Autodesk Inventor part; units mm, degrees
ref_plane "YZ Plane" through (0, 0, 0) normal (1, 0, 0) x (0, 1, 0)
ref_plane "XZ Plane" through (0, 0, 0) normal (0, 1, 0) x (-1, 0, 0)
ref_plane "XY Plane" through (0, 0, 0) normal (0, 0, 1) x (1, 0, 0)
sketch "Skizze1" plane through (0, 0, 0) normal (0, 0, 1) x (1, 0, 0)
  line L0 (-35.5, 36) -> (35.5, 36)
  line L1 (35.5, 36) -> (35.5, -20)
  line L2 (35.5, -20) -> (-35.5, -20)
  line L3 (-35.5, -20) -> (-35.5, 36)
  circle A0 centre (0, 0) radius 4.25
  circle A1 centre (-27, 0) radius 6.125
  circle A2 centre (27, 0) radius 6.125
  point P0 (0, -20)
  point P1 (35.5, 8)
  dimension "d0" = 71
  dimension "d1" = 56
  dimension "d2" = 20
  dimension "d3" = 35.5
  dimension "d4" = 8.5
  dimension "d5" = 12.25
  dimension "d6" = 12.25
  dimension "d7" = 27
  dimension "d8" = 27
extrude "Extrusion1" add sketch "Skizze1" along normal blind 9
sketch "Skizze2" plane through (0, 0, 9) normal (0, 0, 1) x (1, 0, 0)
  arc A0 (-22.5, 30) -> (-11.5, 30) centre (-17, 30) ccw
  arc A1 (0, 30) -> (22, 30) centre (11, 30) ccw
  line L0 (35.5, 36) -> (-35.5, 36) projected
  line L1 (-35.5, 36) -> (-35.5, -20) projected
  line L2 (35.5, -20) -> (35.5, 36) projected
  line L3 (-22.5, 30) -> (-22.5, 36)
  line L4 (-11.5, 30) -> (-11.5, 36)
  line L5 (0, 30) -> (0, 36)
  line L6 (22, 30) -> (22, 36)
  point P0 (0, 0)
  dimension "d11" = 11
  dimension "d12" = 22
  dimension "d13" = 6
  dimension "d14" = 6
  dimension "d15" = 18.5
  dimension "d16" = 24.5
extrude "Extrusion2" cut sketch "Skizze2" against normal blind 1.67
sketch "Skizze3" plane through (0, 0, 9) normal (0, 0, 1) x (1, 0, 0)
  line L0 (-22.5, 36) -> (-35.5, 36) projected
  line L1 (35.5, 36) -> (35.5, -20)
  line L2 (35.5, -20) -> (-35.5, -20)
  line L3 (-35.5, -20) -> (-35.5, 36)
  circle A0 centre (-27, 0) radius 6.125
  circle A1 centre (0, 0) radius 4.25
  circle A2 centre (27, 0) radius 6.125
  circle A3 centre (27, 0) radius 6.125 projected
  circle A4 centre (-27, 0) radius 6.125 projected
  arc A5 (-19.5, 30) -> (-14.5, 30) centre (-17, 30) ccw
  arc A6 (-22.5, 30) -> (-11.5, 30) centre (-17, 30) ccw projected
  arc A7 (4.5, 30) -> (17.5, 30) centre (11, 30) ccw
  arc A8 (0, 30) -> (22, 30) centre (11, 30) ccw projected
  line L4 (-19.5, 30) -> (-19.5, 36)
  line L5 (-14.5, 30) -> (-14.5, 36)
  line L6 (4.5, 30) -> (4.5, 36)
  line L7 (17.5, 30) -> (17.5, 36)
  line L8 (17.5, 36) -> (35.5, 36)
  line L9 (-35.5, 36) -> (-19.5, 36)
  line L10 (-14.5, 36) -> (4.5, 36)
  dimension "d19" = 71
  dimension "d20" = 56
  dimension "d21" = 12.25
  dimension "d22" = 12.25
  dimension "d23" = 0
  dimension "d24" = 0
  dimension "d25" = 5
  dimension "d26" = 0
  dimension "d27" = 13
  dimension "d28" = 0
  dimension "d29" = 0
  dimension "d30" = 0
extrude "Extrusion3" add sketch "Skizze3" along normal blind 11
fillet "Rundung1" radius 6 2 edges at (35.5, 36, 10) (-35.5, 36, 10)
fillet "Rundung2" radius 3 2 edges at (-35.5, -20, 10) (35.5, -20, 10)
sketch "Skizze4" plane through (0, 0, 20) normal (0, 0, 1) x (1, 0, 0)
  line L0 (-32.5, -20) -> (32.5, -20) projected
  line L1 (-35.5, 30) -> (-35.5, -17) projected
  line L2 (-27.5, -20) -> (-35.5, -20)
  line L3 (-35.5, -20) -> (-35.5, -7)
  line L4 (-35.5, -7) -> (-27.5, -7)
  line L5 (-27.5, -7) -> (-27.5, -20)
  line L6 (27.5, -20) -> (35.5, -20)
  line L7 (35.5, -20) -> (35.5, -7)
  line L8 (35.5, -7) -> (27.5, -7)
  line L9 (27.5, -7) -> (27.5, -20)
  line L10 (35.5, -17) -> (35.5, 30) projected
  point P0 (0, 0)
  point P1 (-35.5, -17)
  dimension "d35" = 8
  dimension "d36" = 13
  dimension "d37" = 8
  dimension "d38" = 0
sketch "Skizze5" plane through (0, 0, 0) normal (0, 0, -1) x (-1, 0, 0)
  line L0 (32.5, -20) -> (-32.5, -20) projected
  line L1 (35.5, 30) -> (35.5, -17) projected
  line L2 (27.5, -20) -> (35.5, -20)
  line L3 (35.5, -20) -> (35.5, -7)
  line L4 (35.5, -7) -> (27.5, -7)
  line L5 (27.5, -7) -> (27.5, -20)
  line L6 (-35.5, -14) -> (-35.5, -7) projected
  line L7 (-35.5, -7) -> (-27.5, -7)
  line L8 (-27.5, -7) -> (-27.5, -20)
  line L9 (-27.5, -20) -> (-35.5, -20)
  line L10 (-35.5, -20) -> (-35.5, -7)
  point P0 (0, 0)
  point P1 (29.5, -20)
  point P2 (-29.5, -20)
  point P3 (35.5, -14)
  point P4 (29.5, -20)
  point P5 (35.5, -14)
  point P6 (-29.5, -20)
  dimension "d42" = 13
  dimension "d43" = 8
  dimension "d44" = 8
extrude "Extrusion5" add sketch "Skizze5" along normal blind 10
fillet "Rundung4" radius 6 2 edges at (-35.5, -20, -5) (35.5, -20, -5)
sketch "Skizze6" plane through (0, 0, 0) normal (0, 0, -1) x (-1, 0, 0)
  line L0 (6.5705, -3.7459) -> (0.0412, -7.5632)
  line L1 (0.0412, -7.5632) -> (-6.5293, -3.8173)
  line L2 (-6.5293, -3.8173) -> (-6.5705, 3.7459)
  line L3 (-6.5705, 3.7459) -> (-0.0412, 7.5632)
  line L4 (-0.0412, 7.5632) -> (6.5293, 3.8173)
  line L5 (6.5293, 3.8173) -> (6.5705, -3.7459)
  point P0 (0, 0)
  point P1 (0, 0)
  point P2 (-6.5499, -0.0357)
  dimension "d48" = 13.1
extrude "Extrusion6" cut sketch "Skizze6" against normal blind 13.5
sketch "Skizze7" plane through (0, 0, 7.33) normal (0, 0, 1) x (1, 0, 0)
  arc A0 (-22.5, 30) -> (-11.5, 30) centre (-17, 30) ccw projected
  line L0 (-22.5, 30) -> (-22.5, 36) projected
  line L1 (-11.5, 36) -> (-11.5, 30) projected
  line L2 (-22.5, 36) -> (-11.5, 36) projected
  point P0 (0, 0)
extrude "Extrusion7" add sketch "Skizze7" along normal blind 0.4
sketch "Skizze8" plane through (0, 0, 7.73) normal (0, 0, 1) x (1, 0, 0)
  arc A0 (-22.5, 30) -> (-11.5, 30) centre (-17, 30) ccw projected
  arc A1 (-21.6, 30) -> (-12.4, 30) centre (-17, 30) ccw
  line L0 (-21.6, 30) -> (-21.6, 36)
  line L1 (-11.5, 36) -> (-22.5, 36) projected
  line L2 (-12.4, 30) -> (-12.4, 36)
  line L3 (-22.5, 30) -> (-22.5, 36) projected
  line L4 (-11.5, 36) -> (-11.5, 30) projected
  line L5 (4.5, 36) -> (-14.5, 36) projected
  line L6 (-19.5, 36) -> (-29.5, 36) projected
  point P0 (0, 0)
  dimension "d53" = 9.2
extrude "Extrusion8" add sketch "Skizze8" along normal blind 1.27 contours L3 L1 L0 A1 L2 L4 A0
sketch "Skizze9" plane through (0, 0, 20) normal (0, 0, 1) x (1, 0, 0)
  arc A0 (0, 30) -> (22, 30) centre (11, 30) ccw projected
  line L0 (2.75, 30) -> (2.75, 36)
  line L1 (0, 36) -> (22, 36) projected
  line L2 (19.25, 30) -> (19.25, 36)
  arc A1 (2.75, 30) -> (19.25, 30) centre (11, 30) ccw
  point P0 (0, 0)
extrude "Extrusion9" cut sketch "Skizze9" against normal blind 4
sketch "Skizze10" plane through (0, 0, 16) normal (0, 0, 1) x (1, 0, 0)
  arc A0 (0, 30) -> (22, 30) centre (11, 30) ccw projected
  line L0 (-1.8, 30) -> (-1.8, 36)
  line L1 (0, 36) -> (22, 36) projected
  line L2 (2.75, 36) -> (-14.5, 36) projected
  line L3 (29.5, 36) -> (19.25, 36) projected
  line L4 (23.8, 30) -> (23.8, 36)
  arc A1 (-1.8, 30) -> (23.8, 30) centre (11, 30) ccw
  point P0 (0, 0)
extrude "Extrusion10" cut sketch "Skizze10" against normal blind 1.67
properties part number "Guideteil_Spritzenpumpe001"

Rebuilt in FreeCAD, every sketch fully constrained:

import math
import FreeCAD as App
import Part
import Sketcher
from FreeCAD import Vector
Q = App.Units.Quantity


def edges_at(feature, points):
    """Names of the edges that pass closest to the given points."""
    edges = feature.Shape.Edges
    near = lambda p: min(range(len(edges)), key=lambda i: edges[i].distToShape(Part.Vertex(*p))[0])
    return sorted({f"Edge{near(p) + 1}" for p in points})


def add_polygon(sketch, points):
    """Adds a closed chain of lines whose ends are joined by coincident constraints."""
    first, n = sketch.GeometryCount, len(points)
    for a, b in zip(points, points[1:] + points[:1]):
        sketch.addGeometry(Part.LineSegment(App.Vector(*a, 0), App.Vector(*b, 0)), False)
    for i in range(n):
        sketch.addConstraint(Sketcher.Constraint("Coincident", first + i, 2, first + (i + 1) % n, 1))

doc = App.newDocument("Part")
body = doc.addObject("PartDesign::Body", "Body")

sketch1 = body.newObject("Sketcher::SketchObject", "Sketch")
sketch1.AttachmentSupport = (doc.getObject("XY_Plane"), [""])
sketch1.MapMode = "FlatFace"
add_polygon(sketch1, [(35.5, 36), (-35.5, 36), (-35.5, -20), (35.5, -20)])
sketch1.addGeometry(Part.Circle(Vector(-27, 0, 0), Vector(0, 0, 1), 6.1), False)
sketch1.addGeometry(Part.Circle(Vector(0, 0, 0), Vector(0, 0, 1), 4.2), False)
sketch1.addGeometry(Part.Circle(Vector(27, 0, 0), Vector(0, 0, 1), 6.1), False)
sketch1.addConstraint([
    Sketcher.Constraint("Horizontal", 0),
    Sketcher.Constraint("Vertical", 1),
    Sketcher.Constraint("Horizontal", 2),
    Sketcher.Constraint("Vertical", 3),
    Sketcher.Constraint("Coincident", 5, 3, -1, 1),
    Sketcher.Constraint("Equal", 4, 6),
    Sketcher.Constraint("Symmetric", 4, 3, 6, 3, -1, 1),
    Sketcher.Constraint("PointOnObject", 4, 3, -1),
    Sketcher.Constraint("Diameter", 5, Q("8.5 mm")),
    Sketcher.Constraint("Diameter", 4, Q("12.25 mm")),
    Sketcher.Constraint("DistanceX", 0, 2, 0, 1, Q("71 mm")),
    Sketcher.Constraint("DistanceY", 1, 2, 1, 1, Q("56 mm")),
    Sketcher.Constraint("DistanceX", 4, 3, -1, 1, Q("27 mm")),
    Sketcher.Constraint("DistanceY", 1, 2, -1, 1, Q("20 mm")),
    Sketcher.Constraint("DistanceX", 0, 2, -1, 1, Q("35.5 mm")),
])
pad1 = body.newObject("PartDesign::Pad", "Pad")
pad1.Profile = sketch1
pad1.Length = 9

sketch2 = body.newObject("Sketcher::SketchObject", "Sketch001")
sketch2.AttachmentSupport = (doc.getObject("XY_Plane"), [""])
sketch2.MapMode = "FlatFace"
sketch2.AttachmentOffset = App.Placement(Vector(0, 0, 9), App.Rotation())
sketch2.addGeometry([
    Part.LineSegment(Vector(-22, 36, 0), Vector(-22, 30, 0)),
    Part.ArcOfCircle(Part.Circle(Vector(-17, 30, 0), Vector(0, 0, 1), 6), math.radians(180), math.radians(360)),
    Part.LineSegment(Vector(-12, 30, 0), Vector(-12, 36, 0)),
    Part.LineSegment(Vector(-12, 36, 0), Vector(-22, 36, 0)),
    Part.LineSegment(Vector(22, 36, 0), Vector(0, 36, 0)),
    Part.LineSegment(Vector(0, 36, 0), Vector(0, 30, 0)),
    Part.ArcOfCircle(Part.Circle(Vector(11, 30, 0), Vector(0, 0, 1), 11), math.radians(180), math.radians(360)),
    Part.LineSegment(Vector(22, 30, 0), Vector(22, 36, 0)),
], False)
sketch2.addConstraint([
    Sketcher.Constraint("Tangent", 0, 2, 1, 1),
    Sketcher.Constraint("Tangent", 1, 2, 2, 1),
    Sketcher.Constraint("Coincident", 2, 2, 3, 1),
    Sketcher.Constraint("Coincident", 3, 2, 0, 1),
    Sketcher.Constraint("Coincident", 4, 2, 5, 1),
    Sketcher.Constraint("Tangent", 5, 2, 6, 1),
    Sketcher.Constraint("Tangent", 6, 2, 7, 1),
    Sketcher.Constraint("Coincident", 7, 2, 4, 1),
    Sketcher.Constraint("Vertical", 0),
    Sketcher.Constraint("Vertical", 2),
    Sketcher.Constraint("Horizontal", 3),
    Sketcher.Constraint("Horizontal", 4),
    Sketcher.Constraint("Vertical", 5),
    Sketcher.Constraint("Vertical", 7),
    Sketcher.Constraint("PointOnObject", 4, 2, -2),
    Sketcher.Constraint("Horizontal", 1, 3, 6, 3),
    Sketcher.Constraint("Horizontal", 3, 2, 4, 2),
    Sketcher.Constraint("Radius", 6, Q("11 mm")),
    Sketcher.Constraint("Radius", 1, Q("5.5 mm")),
    Sketcher.Constraint("DistanceY", 0, 2, 0, 1, Q("6 mm")),
    Sketcher.Constraint("DistanceX", 1, 3, -1, 1, Q("17 mm")),
    Sketcher.Constraint("DistanceY", -1, 1, 1, 3, Q("30 mm")),
])
pocket1 = body.newObject("PartDesign::Pocket", "Pocket")
pocket1.Profile = sketch2
pocket1.Length = 1.67

sketch3 = body.newObject("Sketcher::SketchObject", "Sketch002")
sketch3.AttachmentSupport = (doc.getObject("XY_Plane"), [""])
sketch3.MapMode = "FlatFace"
sketch3.AttachmentOffset = App.Placement(Vector(0, 0, 9), App.Rotation())
sketch3.addGeometry([
    Part.LineSegment(Vector(-19.5, 36, 0), Vector(-35.5, 36, 0)),
    Part.LineSegment(Vector(-35.5, 36, 0), Vector(-35.5, -20, 0)),
    Part.LineSegment(Vector(-35.5, -20, 0), Vector(35.5, -20, 0)),
    Part.LineSegment(Vector(35.5, -20, 0), Vector(35.5, 36, 0)),
    Part.LineSegment(Vector(35.5, 36, 0), Vector(17.5, 36, 0)),
    Part.LineSegment(Vector(17.5, 36, 0), Vector(17.5, 30, 0)),
    Part.ArcOfCircle(Part.Circle(Vector(11, 30, 0), Vector(0, 0, 1), 6.5), math.radians(180), math.radians(360)),
    Part.LineSegment(Vector(4.5, 30, 0), Vector(4.5, 36, 0)),
    Part.LineSegment(Vector(4.5, 36, 0), Vector(-14.5, 36, 0)),
    Part.LineSegment(Vector(-14.5, 36, 0), Vector(-14.5, 30, 0)),
    Part.ArcOfCircle(Part.Circle(Vector(-17, 30, 0), Vector(0, 0, 1), 2.5), math.radians(180), math.radians(360)),
    Part.LineSegment(Vector(-19.5, 30, 0), Vector(-19.5, 36, 0)),
    Part.Circle(Vector(-27, 0, 0), Vector(0, 0, 1), 6.1),
    Part.Circle(Vector(0, 0, 0), Vector(0, 0, 1), 4.2),
    Part.Circle(Vector(27, 0, 0), Vector(0, 0, 1), 6.1),
], False)
sketch3.addConstraint([
    Sketcher.Constraint("Coincident", 0, 2, 1, 1),
    Sketcher.Constraint("Coincident", 1, 2, 2, 1),
    Sketcher.Constraint("Coincident", 2, 2, 3, 1),
    Sketcher.Constraint("Coincident", 3, 2, 4, 1),
    Sketcher.Constraint("Coincident", 4, 2, 5, 1),
    Sketcher.Constraint("Tangent", 5, 2, 6, 2),
    Sketcher.Constraint("Tangent", 6, 1, 7, 1),
    Sketcher.Constraint("Coincident", 7, 2, 8, 1),
    Sketcher.Constraint("Coincident", 8, 2, 9, 1),
    Sketcher.Constraint("Tangent", 9, 2, 10, 2),
    Sketcher.Constraint("Tangent", 10, 1, 11, 1),
    Sketcher.Constraint("Coincident", 11, 2, 0, 1),
    Sketcher.Constraint("Horizontal", 0),
    Sketcher.Constraint("Vertical", 1),
    Sketcher.Constraint("Horizontal", 2),
    Sketcher.Constraint("Vertical", 3),
    Sketcher.Constraint("Horizontal", 4),
    Sketcher.Constraint("Vertical", 5),
    Sketcher.Constraint("Vertical", 7),
    Sketcher.Constraint("Horizontal", 8),
    Sketcher.Constraint("Vertical", 9),
    Sketcher.Constraint("Vertical", 11),
    Sketcher.Constraint("Coincident", 13, 3, -1, 1),
    Sketcher.Constraint("Equal", 12, 14),
    Sketcher.Constraint("Symmetric", 12, 3, 14, 3, -1, 1),
    Sketcher.Constraint("Symmetric", 0, 2, 3, 2, -2),
    Sketcher.Constraint("PointOnObject", 12, 3, -1),
    Sketcher.Constraint("Horizontal", 6, 3, 10, 3),
    Sketcher.Constraint("Horizontal", 4, 2, 7, 2),
    Sketcher.Constraint("Radius", 6, Q("6.5 mm")),
    Sketcher.Constraint("Radius", 10, Q("2.5 mm")),
    Sketcher.Constraint("Diameter", 12, Q("12.25 mm")),
    Sketcher.Constraint("DistanceX", 2, 1, 2, 2, Q("71 mm")),
    Sketcher.Constraint("DistanceY", 1, 2, 1, 1, Q("56 mm")),
    Sketcher.Constraint("Diameter", 13, Q("8.5 mm")),
    Sketcher.Constraint("DistanceX", 0, 2, 0, 1, Q("16 mm")),
    Sketcher.Constraint("DistanceX", 4, 2, 4, 1, Q("18 mm")),
    Sketcher.Constraint("DistanceY", 5, 2, 5, 1, Q("6 mm")),
    Sketcher.Constraint("DistanceY", -1, 1, 6, 3, Q("30 mm")),
    Sketcher.Constraint("DistanceX", 12, 3, -1, 1, Q("27 mm")),
])
pad2 = body.newObject("PartDesign::Pad", "Pad001")
pad2.Profile = sketch3
pad2.Length = 11
doc.recompute()

fillet = body.newObject("PartDesign::Fillet", "Fillet")
fillet.Base = (pad2, edges_at(pad2, [(35.5, 36, 10), (-35.5, 36, 10)]))
fillet.Radius = 6
doc.recompute()

fillet2 = body.newObject("PartDesign::Fillet", "Fillet001")
fillet2.Base = (fillet, edges_at(fillet, [(-35.5, -20, 10), (35.5, -20, 10)]))
fillet2.Radius = 3

sketch4 = body.newObject("Sketcher::SketchObject", "Sketch003")
sketch4.AttachmentSupport = (doc.getObject("XY_Plane"), [""])
sketch4.MapMode = "FlatFace"
add_polygon(sketch4, [(36, -20), (28, -20), (28, -7), (36, -7)])
add_polygon(sketch4, [(-28, -20), (-36, -20), (-36, -7), (-28, -7)])
sketch4.addConstraint([
    Sketcher.Constraint("Horizontal", 0),
    Sketcher.Constraint("Vertical", 1),
    Sketcher.Constraint("Horizontal", 2),
    Sketcher.Constraint("Vertical", 3),
    Sketcher.Constraint("Horizontal", 4),
    Sketcher.Constraint("Vertical", 5),
    Sketcher.Constraint("Horizontal", 6),
    Sketcher.Constraint("Vertical", 7),
    Sketcher.Constraint("Symmetric", 3, 2, 4, 2, -2),
    Sketcher.Constraint("Symmetric", 1, 2, 6, 2, -2),
    Sketcher.Constraint("DistanceX", 0, 2, 0, 1, Q("8 mm")),
    Sketcher.Constraint("DistanceY", 1, 1, 1, 2, Q("13 mm")),
    Sketcher.Constraint("DistanceY", 0, 2, -1, 1, Q("20 mm")),
    Sketcher.Constraint("DistanceX", 4, 2, 0, 2, Q("63 mm")),
])
pad3 = body.newObject("PartDesign::Pad", "Pad002")
pad3.Profile = sketch4
pad3.Length = 10
pad3.Reversed = True
doc.recompute()

fillet3 = body.newObject("PartDesign::Fillet", "Fillet002")
fillet3.Base = (pad3, edges_at(pad3, [(-35.5, -20, -5), (35.5, -20, -5)]))
fillet3.Radius = 6

sketch5 = body.newObject("Sketcher::SketchObject", "Sketch004")
sketch5.AttachmentSupport = (doc.getObject("XY_Plane"), [""])
sketch5.MapMode = "FlatFace"
add_polygon(sketch5, [(-0.0412, -7.5632), (-6.5705, -3.7459), (-6.5293, 3.8173), (0.0412, 7.5632), (6.5705, 3.7459), (6.5293, -3.8173)])
sketch5.addConstraint([
    Sketcher.Constraint("DistanceX", 1, 2, 3, 2, Q("13.0998 mm")),
    Sketcher.Constraint("DistanceX", 0, 2, 4, 2, Q("13.0998 mm")),
    Sketcher.Constraint("DistanceY", 0, 2, -1, 1, Q("3.746 mm")),
    Sketcher.Constraint("DistanceY", -1, 1, 3, 2, Q("3.746 mm")),
    Sketcher.Constraint("DistanceY", 1, 2, 2, 2, Q("3.746 mm")),
    Sketcher.Constraint("DistanceY", 0, 2, 2, 2, Q("11.309 mm")),
    Sketcher.Constraint("DistanceX", 0, 2, 3, 2, Q("13.141 mm")),
    Sketcher.Constraint("DistanceX", 2, 2, 4, 2, Q("6.488 mm")),
    Sketcher.Constraint("DistanceY", 5, 2, 4, 2, Q("3.746 mm")),
    Sketcher.Constraint("DistanceY", 5, 2, 3, 2, Q("11.309 mm")),
    Sketcher.Constraint("DistanceX", 1, 2, 5, 2, Q("6.488 mm")),
    Sketcher.Constraint("DistanceX", 0, 2, -1, 1, Q("6.5705 mm")),
])
pocket2 = body.newObject("PartDesign::Pocket", "Pocket001")
pocket2.Profile = sketch5
pocket2.Length = 13.5
pocket2.Reversed = True

sketch6 = body.newObject("Sketcher::SketchObject", "Sketch005")
sketch6.AttachmentSupport = (doc.getObject("XY_Plane"), [""])
sketch6.MapMode = "FlatFace"
sketch6.AttachmentOffset = App.Placement(Vector(0, 0, 7.33), App.Rotation())
sketch6.addGeometry([
    Part.LineSegment(Vector(-22, 36, 0), Vector(-22, 30, 0)),
    Part.ArcOfCircle(Part.Circle(Vector(-17, 30, 0), Vector(0, 0, 1), 6), math.radians(180), math.radians(360)),
    Part.LineSegment(Vector(-12, 30, 0), Vector(-12, 36, 0)),
    Part.LineSegment(Vector(-12, 36, 0), Vector(-22, 36, 0)),
], False)
sketch6.addConstraint([
    Sketcher.Constraint("Tangent", 0, 2, 1, 1),
    Sketcher.Constraint("Tangent", 1, 2, 2, 1),
    Sketcher.Constraint("Coincident", 2, 2, 3, 1),
    Sketcher.Constraint("Coincident", 3, 2, 0, 1),
    Sketcher.Constraint("Vertical", 0),
    Sketcher.Constraint("Vertical", 2),
    Sketcher.Constraint("Horizontal", 3),
    Sketcher.Constraint("Radius", 1, Q("5.5 mm")),
    Sketcher.Constraint("DistanceY", 0, 2, 0, 1, Q("6 mm")),
    Sketcher.Constraint("DistanceX", 1, 3, -1, 1, Q("17 mm")),
    Sketcher.Constraint("DistanceY", -1, 1, 1, 3, Q("30 mm")),
])
pad4 = body.newObject("PartDesign::Pad", "Pad003")
pad4.Profile = sketch6
pad4.Length = 0.4

sketch7 = body.newObject("Sketcher::SketchObject", "Sketch006")
sketch7.AttachmentSupport = (doc.getObject("XY_Plane"), [""])
sketch7.MapMode = "FlatFace"
sketch7.AttachmentOffset = App.Placement(Vector(0, 0, 7.73), App.Rotation())
sketch7.addGeometry([
    Part.LineSegment(Vector(-22.5, 36, 0), Vector(-22.5, 30, 0)),
    Part.ArcOfCircle(Part.Circle(Vector(-17, 30, 0), Vector(0, 0, 1), 5.5), math.radians(180), math.radians(360)),
    Part.LineSegment(Vector(-11.5, 30, 0), Vector(-11.5, 36, 0)),
    Part.LineSegment(Vector(-11.5, 36, 0), Vector(-12.4, 36, 0)),
    Part.LineSegment(Vector(-12.4, 36, 0), Vector(-12.4, 30, 0)),
    Part.ArcOfCircle(Part.Circle(Vector(-17, 30, 0), Vector(0, 0, 1), 4.6), math.radians(180), math.radians(360)),
    Part.LineSegment(Vector(-21.6, 30, 0), Vector(-21.6, 36, 0)),
    Part.LineSegment(Vector(-21.6, 36, 0), Vector(-22.5, 36, 0)),
], False)
sketch7.addConstraint([
    Sketcher.Constraint("Tangent", 0, 2, 1, 1),
    Sketcher.Constraint("Tangent", 1, 2, 2, 1),
    Sketcher.Constraint("Coincident", 2, 2, 3, 1),
    Sketcher.Constraint("Coincident", 3, 2, 4, 1),
    Sketcher.Constraint("Tangent", 4, 2, 5, 2),
    Sketcher.Constraint("Tangent", 5, 1, 6, 1),
    Sketcher.Constraint("Coincident", 6, 2, 7, 1),
    Sketcher.Constraint("Coincident", 7, 2, 0, 1),
    Sketcher.Constraint("Vertical", 0),
    Sketcher.Constraint("Vertical", 2),
    Sketcher.Constraint("Horizontal", 3),
    Sketcher.Constraint("Vertical", 4),
    Sketcher.Constraint("Vertical", 6),
    Sketcher.Constraint("Horizontal", 7),
    Sketcher.Constraint("Coincident", 5, 3, 1, 3),
    Sketcher.Constraint("Horizontal", 3, 2, 6, 2),
    Sketcher.Constraint("Radius", 5, Q("4.6 mm")),
    Sketcher.Constraint("Radius", 1, Q("5.5 mm")),
    Sketcher.Constraint("DistanceY", 0, 2, 0, 1, Q("6 mm")),
    Sketcher.Constraint("DistanceX", 1, 3, -1, 1, Q("17 mm")),
    Sketcher.Constraint("DistanceY", -1, 1, 1, 3, Q("30 mm")),
])
pad5 = body.newObject("PartDesign::Pad", "Pad004")
pad5.Profile = sketch7
pad5.Length = 1.27

sketch8 = body.newObject("Sketcher::SketchObject", "Sketch007")
sketch8.AttachmentSupport = (doc.getObject("XY_Plane"), [""])
sketch8.MapMode = "FlatFace"
sketch8.AttachmentOffset = App.Placement(Vector(0, 0, 20), App.Rotation())
sketch8.addGeometry([
    Part.LineSegment(Vector(3, 36, 0), Vector(3, 30, 0)),
    Part.ArcOfCircle(Part.Circle(Vector(11, 30, 0), Vector(0, 0, 1), 8), math.radians(180), math.radians(360)),
    Part.LineSegment(Vector(19, 30, 0), Vector(19, 36, 0)),
    Part.LineSegment(Vector(19, 36, 0), Vector(3, 36, 0)),
], False)
sketch8.addConstraint([
    Sketcher.Constraint("Tangent", 0, 2, 1, 1),
    Sketcher.Constraint("Tangent", 1, 2, 2, 1),
    Sketcher.Constraint("Coincident", 2, 2, 3, 1),
    Sketcher.Constraint("Coincident", 3, 2, 0, 1),
    Sketcher.Constraint("Vertical", 0),
    Sketcher.Constraint("Vertical", 2),
    Sketcher.Constraint("Horizontal", 3),
    Sketcher.Constraint("DistanceY", 0, 2, 0, 1, Q("6 mm")),
    Sketcher.Constraint("Radius", 1, Q("8.25 mm")),
    Sketcher.Constraint("DistanceX", -1, 1, 1, 3, Q("11 mm")),
    Sketcher.Constraint("DistanceY", -1, 1, 1, 3, Q("30 mm")),
])
pocket3 = body.newObject("PartDesign::Pocket", "Pocket002")
pocket3.Profile = sketch8
pocket3.Length = 4

sketch9 = body.newObject("Sketcher::SketchObject", "Sketch008")
sketch9.AttachmentSupport = (doc.getObject("XY_Plane"), [""])
sketch9.MapMode = "FlatFace"
sketch9.AttachmentOffset = App.Placement(Vector(0, 0, 16), App.Rotation())
sketch9.addGeometry([
    Part.LineSegment(Vector(-2, 36, 0), Vector(-2, 30, 0)),
    Part.ArcOfCircle(Part.Circle(Vector(11, 30, 0), Vector(0, 0, 1), 13), math.radians(180), math.radians(360)),
    Part.LineSegment(Vector(24, 30, 0), Vector(24, 36, 0)),
    Part.LineSegment(Vector(24, 36, 0), Vector(-2, 36, 0)),
], False)
sketch9.addConstraint([
    Sketcher.Constraint("Tangent", 0, 2, 1, 1),
    Sketcher.Constraint("Tangent", 1, 2, 2, 1),
    Sketcher.Constraint("Coincident", 2, 2, 3, 1),
    Sketcher.Constraint("Coincident", 3, 2, 0, 1),
    Sketcher.Constraint("Vertical", 0),
    Sketcher.Constraint("Vertical", 2),
    Sketcher.Constraint("Horizontal", 3),
    Sketcher.Constraint("Radius", 1, Q("12.8 mm")),
    Sketcher.Constraint("DistanceY", 0, 2, 0, 1, Q("6 mm")),
    Sketcher.Constraint("DistanceX", -1, 1, 1, 3, Q("11 mm")),
    Sketcher.Constraint("DistanceY", -1, 1, 1, 3, Q("30 mm")),
])
pocket4 = body.newObject("PartDesign::Pocket", "Pocket003")
pocket4.Profile = sketch9
pocket4.Length = 1.67

doc.recompute()
